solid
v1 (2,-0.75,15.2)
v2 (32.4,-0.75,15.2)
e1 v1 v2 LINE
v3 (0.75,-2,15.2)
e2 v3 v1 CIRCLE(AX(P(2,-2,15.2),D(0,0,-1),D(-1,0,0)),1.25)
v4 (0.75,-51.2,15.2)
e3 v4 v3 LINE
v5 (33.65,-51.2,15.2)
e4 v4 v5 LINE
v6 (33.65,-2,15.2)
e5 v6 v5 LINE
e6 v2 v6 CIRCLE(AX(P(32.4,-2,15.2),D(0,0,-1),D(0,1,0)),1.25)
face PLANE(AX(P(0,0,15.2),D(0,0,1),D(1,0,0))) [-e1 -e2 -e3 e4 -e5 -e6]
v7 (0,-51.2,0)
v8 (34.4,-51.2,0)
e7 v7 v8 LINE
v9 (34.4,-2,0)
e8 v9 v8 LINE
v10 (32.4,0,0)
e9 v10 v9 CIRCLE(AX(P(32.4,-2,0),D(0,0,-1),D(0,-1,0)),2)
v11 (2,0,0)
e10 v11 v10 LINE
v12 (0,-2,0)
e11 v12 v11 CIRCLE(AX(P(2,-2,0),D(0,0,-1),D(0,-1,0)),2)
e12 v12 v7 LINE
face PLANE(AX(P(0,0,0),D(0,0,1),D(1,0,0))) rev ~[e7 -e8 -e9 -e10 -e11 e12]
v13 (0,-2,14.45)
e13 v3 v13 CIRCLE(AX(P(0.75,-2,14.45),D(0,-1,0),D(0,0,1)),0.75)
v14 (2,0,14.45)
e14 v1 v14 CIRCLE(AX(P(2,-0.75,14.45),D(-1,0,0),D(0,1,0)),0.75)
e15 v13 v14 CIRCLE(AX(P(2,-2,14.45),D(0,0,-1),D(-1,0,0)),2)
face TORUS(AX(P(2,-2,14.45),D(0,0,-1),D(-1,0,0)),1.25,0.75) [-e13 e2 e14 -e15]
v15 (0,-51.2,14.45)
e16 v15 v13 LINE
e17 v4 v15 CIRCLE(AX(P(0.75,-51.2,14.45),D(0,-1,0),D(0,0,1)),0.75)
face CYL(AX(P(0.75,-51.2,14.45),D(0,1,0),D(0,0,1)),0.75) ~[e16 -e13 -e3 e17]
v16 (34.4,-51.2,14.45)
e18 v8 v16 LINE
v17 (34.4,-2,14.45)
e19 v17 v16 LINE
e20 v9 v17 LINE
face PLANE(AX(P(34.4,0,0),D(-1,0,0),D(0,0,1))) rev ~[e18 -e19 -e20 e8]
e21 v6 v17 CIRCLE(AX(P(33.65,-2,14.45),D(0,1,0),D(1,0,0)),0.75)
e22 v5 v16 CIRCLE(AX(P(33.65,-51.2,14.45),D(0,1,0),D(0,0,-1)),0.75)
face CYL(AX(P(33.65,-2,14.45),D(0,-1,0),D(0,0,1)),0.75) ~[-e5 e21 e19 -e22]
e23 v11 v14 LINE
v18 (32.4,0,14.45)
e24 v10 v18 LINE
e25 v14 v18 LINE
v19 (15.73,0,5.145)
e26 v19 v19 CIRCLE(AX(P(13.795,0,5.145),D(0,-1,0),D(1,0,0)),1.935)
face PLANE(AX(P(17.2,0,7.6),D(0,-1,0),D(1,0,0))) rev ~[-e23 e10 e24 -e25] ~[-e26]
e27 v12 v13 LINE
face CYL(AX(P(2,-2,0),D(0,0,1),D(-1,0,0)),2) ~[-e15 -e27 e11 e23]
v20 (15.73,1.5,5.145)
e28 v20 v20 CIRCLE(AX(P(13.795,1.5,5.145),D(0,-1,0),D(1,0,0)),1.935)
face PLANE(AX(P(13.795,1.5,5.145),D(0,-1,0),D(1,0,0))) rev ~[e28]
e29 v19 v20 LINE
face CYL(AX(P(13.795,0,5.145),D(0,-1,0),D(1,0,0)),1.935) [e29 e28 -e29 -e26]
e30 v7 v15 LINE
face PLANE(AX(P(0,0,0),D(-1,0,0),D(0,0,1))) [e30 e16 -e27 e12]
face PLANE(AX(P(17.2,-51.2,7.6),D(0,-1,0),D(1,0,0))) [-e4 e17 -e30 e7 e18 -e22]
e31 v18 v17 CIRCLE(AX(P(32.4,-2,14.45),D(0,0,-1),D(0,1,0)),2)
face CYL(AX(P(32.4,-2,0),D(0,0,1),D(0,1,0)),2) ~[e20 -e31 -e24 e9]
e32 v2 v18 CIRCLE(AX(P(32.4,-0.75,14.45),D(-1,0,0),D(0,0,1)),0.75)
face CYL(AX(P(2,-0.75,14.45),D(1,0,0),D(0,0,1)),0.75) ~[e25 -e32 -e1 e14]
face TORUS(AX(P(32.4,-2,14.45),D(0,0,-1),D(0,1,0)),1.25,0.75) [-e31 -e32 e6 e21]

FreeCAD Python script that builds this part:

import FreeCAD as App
import Part
import Sketcher

V = App.Vector
Q = App.Units.Quantity


def edges_at(feature, points):
    """Names of the edges that pass closest to the given points."""
    edges = feature.Shape.Edges
    near = lambda p: min(range(len(edges)), key=lambda i: edges[i].distToShape(Part.Vertex(*p))[0])
    return sorted({f"Edge{near(p) + 1}" for p in points})


def add_polygon(sketch, points):
    """Adds a closed chain of lines whose ends are joined by coincident constraints."""
    first, n = sketch.GeometryCount, len(points)
    for a, b in zip(points, points[1:] + points[:1]):
        sketch.addGeometry(Part.LineSegment(App.Vector(*a, 0), App.Vector(*b, 0)), False)
    for i in range(n):
        sketch.addConstraint(Sketcher.Constraint("Coincident", first + i, 2, first + (i + 1) % n, 1))

doc = App.newDocument("Part")
body = doc.addObject("PartDesign::Body", "Body")

# Sketch on XZ plane
sketch1 = body.newObject("Sketcher::SketchObject", "Sketch")
sketch1.AttachmentSupport = (doc.getObject("XZ_Plane"), [""])
sketch1.MapMode = "FlatFace"
add_polygon(sketch1, [(0, 15.2), (0, 0), (34.4, 0), (34.4, 15.2)])  # lines 0-3
sketch1.addConstraint([
    Sketcher.Constraint("Vertical", 0),
    Sketcher.Constraint("Horizontal", 1),
    Sketcher.Constraint("Vertical", 2),
    Sketcher.Constraint("Horizontal", 3),
    Sketcher.Constraint("Coincident", 0, 2, -1, 1),
    Sketcher.Constraint("DistanceX", 1, 1, 1, 2, Q("34.4 mm")),
    Sketcher.Constraint("DistanceY", 0, 2, 0, 1, Q("15.2 mm")),
])
pad1 = body.newObject("PartDesign::Pad", "Pad")
pad1.Profile = sketch1
pad1.Length = 51.2

# Sketch on XZ plane
sketch2 = body.newObject("Sketcher::SketchObject", "Sketch001")
sketch2.AttachmentSupport = (doc.getObject("XZ_Plane"), [""])
sketch2.MapMode = "FlatFace"
sketch2.addGeometry(Part.Circle(V(13.795, 5.145, 0), V(0, 0, 1), 1.935), False)
sketch2.addConstraint([
    Sketcher.Constraint("Diameter", 0, Q("3.87 mm")),
    Sketcher.Constraint("DistanceX", -1, 1, 0, 3, Q("13.795 mm")),
    Sketcher.Constraint("DistanceY", -1, 1, 0, 3, Q("5.145 mm")),
])
pad2 = body.newObject("PartDesign::Pad", "Pad001")
pad2.Profile = sketch2
pad2.Length = 1.5
pad2.Reversed = True
doc.recompute()

fillet = body.newObject("PartDesign::Fillet", "Fillet")
fillet.Base = (pad2, edges_at(pad2, [(34.4, 0, 7.6), (0, 0, 7.6)]))
fillet.Radius = 2
doc.recompute()

fillet2 = body.newObject("PartDesign::Fillet", "Fillet001")
fillet2.Base = (fillet, edges_at(fillet, [(34.4, -26.6, 15.2)]))
fillet2.Radius = 0.75

doc.recompute()
